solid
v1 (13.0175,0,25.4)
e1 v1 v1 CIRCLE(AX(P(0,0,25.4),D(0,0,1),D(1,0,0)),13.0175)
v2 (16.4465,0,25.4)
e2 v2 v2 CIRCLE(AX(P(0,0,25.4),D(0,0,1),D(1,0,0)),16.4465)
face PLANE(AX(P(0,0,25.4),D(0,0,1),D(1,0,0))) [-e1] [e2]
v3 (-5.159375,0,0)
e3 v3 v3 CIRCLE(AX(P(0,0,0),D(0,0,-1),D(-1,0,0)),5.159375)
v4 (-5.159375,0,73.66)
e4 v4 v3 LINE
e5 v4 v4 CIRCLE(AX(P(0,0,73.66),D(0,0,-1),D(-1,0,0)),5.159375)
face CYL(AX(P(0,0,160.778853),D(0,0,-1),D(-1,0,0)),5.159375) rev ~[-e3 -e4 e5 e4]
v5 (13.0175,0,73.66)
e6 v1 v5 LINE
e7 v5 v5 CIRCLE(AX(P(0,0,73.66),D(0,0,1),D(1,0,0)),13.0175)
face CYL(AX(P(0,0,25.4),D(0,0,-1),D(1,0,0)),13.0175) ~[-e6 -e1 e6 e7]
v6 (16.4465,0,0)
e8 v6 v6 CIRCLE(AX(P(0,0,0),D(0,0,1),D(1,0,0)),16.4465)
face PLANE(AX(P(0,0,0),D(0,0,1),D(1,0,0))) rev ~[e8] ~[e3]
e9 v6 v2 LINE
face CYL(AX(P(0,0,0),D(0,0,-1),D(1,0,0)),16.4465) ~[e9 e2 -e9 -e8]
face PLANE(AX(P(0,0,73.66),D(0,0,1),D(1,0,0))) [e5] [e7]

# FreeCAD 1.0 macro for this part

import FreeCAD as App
import Part
import Sketcher

V = App.Vector
Q = App.Units.Quantity

doc = App.newDocument("Part")
body = doc.addObject("PartDesign::Body", "Body")

# Sketch on XY plane
sketch1 = doc.addObject("Sketcher::SketchObject", "Sketch")
body.addObject(sketch1)
sketch1.AttachmentSupport = (doc.XY_Plane, [""])
sketch1.MapMode = "FlatFace"
sketch1.addGeometry(Part.Circle(V(0, 0, 0), V(0, 0, 1), 16), False)
sketch1.addConstraint(Sketcher.Constraint("Coincident", 0, 3, -1, 1))
sketch1.addConstraint(Sketcher.Constraint("Diameter", 0, Q("1.295 in")))
pad1 = doc.addObject("PartDesign::Pad", "Pad")
body.addObject(pad1)
pad1.Profile = sketch1
pad1.Length = Q("1 in")

# Sketch on XY plane
sketch2 = doc.addObject("Sketcher::SketchObject", "Sketch001")
body.addObject(sketch2)
sketch2.AttachmentSupport = (doc.XY_Plane, [""])
sketch2.MapMode = "FlatFace"
sketch2.AttachmentOffset = App.Placement(V(0, 0, 1 * 25.4), App.Rotation())
sketch2.addGeometry(Part.Circle(V(0, 0, 0), V(0, 0, 1), 13), False)
sketch2.addConstraint(Sketcher.Constraint("Coincident", 0, 3, -1, 1))
sketch2.addConstraint(Sketcher.Constraint("Diameter", 0, Q("1.025 in")))
pad2 = doc.addObject("PartDesign::Pad", "Pad001")
body.addObject(pad2)
pad2.Profile = sketch2
pad2.Length = Q("1.9 in")

# Sketch on XY plane
sketch3 = doc.addObject("Sketcher::SketchObject", "Sketch002")
body.addObject(sketch3)
sketch3.AttachmentSupport = (doc.XY_Plane, [""])
sketch3.MapMode = "FlatFace"
sketch3.AttachmentOffset = App.Placement(V(0, 0, 2.9 * 25.4), App.Rotation())
sketch3.addGeometry(Part.Circle(V(0, 0, 0), V(0, 0, 1), 5), False)
sketch3.addConstraint(Sketcher.Constraint("Coincident", 0, 3, -1, 1))
sketch3.addConstraint(Sketcher.Constraint("Diameter", 0, Q("0.40625 in")))
doc.recompute()
hole = doc.addObject("PartDesign::Hole", "Hole")
body.addObject(hole)
hole.Profile = sketch3
hole.ThreadType = "None"
hole.Diameter = Q("0.40625 in")
hole.DepthType = "ThroughAll"

doc.recompute()
